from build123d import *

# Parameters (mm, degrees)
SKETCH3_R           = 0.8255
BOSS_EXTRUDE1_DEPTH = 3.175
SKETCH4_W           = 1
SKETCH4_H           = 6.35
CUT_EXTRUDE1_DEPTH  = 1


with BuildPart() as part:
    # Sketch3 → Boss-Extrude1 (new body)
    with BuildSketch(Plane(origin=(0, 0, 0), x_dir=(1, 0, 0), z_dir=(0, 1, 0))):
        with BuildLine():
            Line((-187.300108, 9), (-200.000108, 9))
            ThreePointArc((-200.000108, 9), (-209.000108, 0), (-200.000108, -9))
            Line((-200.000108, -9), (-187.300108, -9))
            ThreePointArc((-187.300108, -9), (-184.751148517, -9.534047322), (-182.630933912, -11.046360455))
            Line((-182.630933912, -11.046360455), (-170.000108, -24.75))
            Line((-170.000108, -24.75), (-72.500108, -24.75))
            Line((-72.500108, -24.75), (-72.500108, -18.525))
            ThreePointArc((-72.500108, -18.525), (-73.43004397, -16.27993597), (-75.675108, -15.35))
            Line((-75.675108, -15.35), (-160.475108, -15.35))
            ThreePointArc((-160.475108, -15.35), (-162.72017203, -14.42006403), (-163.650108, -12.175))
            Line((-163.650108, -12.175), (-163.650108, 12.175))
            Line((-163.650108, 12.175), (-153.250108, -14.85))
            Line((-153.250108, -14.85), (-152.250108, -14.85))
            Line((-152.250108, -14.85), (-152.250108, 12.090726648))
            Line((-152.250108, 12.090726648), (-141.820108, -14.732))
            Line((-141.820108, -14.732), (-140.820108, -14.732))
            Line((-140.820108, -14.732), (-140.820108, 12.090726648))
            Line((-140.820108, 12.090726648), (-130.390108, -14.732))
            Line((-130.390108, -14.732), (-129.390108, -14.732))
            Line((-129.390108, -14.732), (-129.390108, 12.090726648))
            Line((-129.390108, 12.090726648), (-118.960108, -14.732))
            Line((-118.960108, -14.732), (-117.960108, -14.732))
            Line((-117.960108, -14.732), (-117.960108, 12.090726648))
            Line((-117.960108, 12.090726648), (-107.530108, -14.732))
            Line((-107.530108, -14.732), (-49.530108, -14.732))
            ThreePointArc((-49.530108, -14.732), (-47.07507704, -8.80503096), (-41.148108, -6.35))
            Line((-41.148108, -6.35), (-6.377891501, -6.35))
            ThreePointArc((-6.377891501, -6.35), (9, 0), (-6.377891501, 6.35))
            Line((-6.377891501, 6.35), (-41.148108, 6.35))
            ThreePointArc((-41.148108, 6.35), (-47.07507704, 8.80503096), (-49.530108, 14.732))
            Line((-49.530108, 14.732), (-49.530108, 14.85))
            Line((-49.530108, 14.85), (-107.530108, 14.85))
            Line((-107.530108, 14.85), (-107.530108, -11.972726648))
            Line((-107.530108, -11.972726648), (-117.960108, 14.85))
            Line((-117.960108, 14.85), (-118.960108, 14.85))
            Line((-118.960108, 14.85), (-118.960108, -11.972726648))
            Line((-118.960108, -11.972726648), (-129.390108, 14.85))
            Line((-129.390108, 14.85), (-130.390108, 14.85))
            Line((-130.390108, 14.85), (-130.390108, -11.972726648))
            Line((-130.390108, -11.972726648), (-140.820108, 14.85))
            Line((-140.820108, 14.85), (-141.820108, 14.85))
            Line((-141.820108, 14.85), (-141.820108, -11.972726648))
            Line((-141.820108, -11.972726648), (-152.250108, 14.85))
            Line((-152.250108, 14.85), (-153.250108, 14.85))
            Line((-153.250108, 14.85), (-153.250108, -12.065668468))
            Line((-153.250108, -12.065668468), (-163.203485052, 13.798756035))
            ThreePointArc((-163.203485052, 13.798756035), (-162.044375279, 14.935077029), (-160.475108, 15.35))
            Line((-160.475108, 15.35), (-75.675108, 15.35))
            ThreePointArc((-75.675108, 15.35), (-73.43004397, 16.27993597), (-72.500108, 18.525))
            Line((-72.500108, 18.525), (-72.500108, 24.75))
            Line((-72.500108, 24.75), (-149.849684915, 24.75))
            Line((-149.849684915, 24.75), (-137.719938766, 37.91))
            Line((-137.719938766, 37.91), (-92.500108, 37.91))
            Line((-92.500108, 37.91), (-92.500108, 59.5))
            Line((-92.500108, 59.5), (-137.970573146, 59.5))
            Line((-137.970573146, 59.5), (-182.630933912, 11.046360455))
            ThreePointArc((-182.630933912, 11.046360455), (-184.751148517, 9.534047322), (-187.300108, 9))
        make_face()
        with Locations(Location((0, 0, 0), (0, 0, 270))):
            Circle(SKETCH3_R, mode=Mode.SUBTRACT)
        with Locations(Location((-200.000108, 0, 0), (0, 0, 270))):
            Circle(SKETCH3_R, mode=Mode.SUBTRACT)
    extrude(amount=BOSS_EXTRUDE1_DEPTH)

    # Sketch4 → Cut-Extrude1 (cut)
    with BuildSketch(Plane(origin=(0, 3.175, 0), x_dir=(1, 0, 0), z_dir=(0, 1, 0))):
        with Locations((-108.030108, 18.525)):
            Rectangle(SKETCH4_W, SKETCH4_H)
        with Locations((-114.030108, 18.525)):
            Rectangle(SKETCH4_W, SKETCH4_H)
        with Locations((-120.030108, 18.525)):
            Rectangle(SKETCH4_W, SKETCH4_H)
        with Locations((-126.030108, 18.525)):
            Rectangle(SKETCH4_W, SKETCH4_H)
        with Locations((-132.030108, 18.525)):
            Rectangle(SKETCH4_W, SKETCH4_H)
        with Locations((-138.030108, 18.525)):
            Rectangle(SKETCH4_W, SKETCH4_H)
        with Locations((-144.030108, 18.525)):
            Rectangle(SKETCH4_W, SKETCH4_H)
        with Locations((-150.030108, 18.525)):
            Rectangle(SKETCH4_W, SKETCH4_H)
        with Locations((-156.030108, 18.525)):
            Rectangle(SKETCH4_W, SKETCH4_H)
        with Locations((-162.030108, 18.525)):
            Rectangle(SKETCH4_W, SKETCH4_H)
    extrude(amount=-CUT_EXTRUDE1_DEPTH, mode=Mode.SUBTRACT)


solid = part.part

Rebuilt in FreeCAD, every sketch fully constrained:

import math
import FreeCAD as App
import Part
import Sketcher
from FreeCAD import Vector
Q = App.Units.Quantity


def add_polygon(sketch, points):
    """Adds a closed chain of lines whose ends are joined by coincident constraints."""
    first, n = sketch.GeometryCount, len(points)
    for a, b in zip(points, points[1:] + points[:1]):
        sketch.addGeometry(Part.LineSegment(App.Vector(*a, 0), App.Vector(*b, 0)), False)
    for i in range(n):
        sketch.addConstraint(Sketcher.Constraint("Coincident", first + i, 2, first + (i + 1) % n, 1))

doc = App.newDocument("Part")
params = doc.addObject("Spreadsheet::Sheet", "Params")
for row, (alias, value) in enumerate([
    ("sketch1_radius", "0.25 in"),
    ("sketch1_radius2", "0.33 in"),
    ("sketch1_diameter", "0.065 in"),
    ("sketch1_width", "0.5 in"),
    ("sketch1_radius3", "0.125 in"),
    ("pad1_length", "0.125 in"),
    ("sketch2_height", "0.25 in"),
    ("pocket1_length", "1 mm"),
], start=1):
    params.set(f"A{row}", alias)
    params.set(f"B{row}", "=" + value)
    params.setAlias(f"B{row}", alias)

body = doc.addObject("PartDesign::Body", "Body")

sketch1 = body.newObject("Sketcher::SketchObject", "Sketch")
sketch1.AttachmentSupport = (doc.getObject("XZ_Plane"), [""])
sketch1.MapMode = "FlatFace"
sketch1.addGeometry([
    Part.LineSegment(Vector(-187.3, -9, 0), Vector(-200, -9, 0)),
    Part.ArcOfCircle(Part.Circle(Vector(-200, 0, 0), Vector(0, 0, 1), 9), math.radians(90), math.radians(270)),
    Part.LineSegment(Vector(-200, 9, 0), Vector(-187.3, 9, 0)),
    Part.ArcOfCircle(Part.Circle(Vector(-187.3, 15.35, 0), Vector(0, 0, 1), 6.35), math.radians(-90), math.radians(-43)),
    Part.LineSegment(Vector(-182.63, 11.05, 0), Vector(-170, 24.75, 0)),
    Part.LineSegment(Vector(-170, 24.75, 0), Vector(-72.5, 24.75, 0)),
    Part.LineSegment(Vector(-72.5, 24.75, 0), Vector(-72.5, 18.52, 0)),
    Part.ArcOfCircle(Part.Circle(Vector(-75.68, 18.53, 0), Vector(0, 0, 1), 3.18), math.radians(-90), math.radians(0)),
    Part.LineSegment(Vector(-75.68, 15.35, 0), Vector(-160.48, 15.35, 0)),
    Part.ArcOfCircle(Part.Circle(Vector(-160.48, 12.17, 0), Vector(0, 0, 1), 3.18), math.radians(90), math.radians(180)),
    Part.LineSegment(Vector(-163.65, 12.18, 0), Vector(-163.65, -12.18, 0)),
    Part.LineSegment(Vector(-163.65, -12.18, 0), Vector(-153.25, 14.85, 0)),
    Part.LineSegment(Vector(-153.25, 14.85, 0), Vector(-152.25, 14.85, 0)),
    Part.LineSegment(Vector(-152.25, 14.85, 0), Vector(-152.25, -12.09, 0)),
    Part.LineSegment(Vector(-152.25, -12.09, 0), Vector(-141.82, 14.73, 0)),
    Part.LineSegment(Vector(-141.82, 14.73, 0), Vector(-140.82, 14.73, 0)),
    Part.LineSegment(Vector(-140.82, 14.73, 0), Vector(-140.82, -12.09, 0)),
    Part.LineSegment(Vector(-140.82, -12.09, 0), Vector(-130.39, 14.73, 0)),
    Part.LineSegment(Vector(-130.39, 14.73, 0), Vector(-129.39, 14.73, 0)),
    Part.LineSegment(Vector(-129.39, 14.73, 0), Vector(-129.39, -12.09, 0)),
    Part.LineSegment(Vector(-129.39, -12.09, 0), Vector(-118.96, 14.73, 0)),
    Part.LineSegment(Vector(-118.96, 14.73, 0), Vector(-117.96, 14.73, 0)),
    Part.LineSegment(Vector(-117.96, 14.73, 0), Vector(-117.96, -12.09, 0)),
    Part.LineSegment(Vector(-117.96, -12.09, 0), Vector(-107.53, 14.73, 0)),
    Part.LineSegment(Vector(-107.53, 14.73, 0), Vector(-49.53, 14.73, 0)),
    Part.ArcOfCircle(Part.Circle(Vector(-41.15, 14.73, 0), Vector(0, 0, 1), 8.38), math.radians(180), math.radians(270)),
    Part.LineSegment(Vector(-41.15, 6.35, 0), Vector(-6.38, 6.35, 0)),
    Part.ArcOfCircle(Part.Circle(Vector(0, 0, 0), Vector(0, 0, 1), 9), math.radians(-135), math.radians(135)),
    Part.LineSegment(Vector(-6.38, -6.35, 0), Vector(-41.15, -6.35, 0)),
    Part.ArcOfCircle(Part.Circle(Vector(-41.15, -14.73, 0), Vector(0, 0, 1), 8.38), math.radians(90), math.radians(180)),
    Part.LineSegment(Vector(-49.53, -14.73, 0), Vector(-49.53, -14.85, 0)),
    Part.LineSegment(Vector(-49.53, -14.85, 0), Vector(-107.53, -14.85, 0)),
    Part.LineSegment(Vector(-107.53, -14.85, 0), Vector(-107.53, 11.97, 0)),
    Part.LineSegment(Vector(-107.53, 11.97, 0), Vector(-117.96, -14.85, 0)),
    Part.LineSegment(Vector(-117.96, -14.85, 0), Vector(-118.96, -14.85, 0)),
    Part.LineSegment(Vector(-118.96, -14.85, 0), Vector(-118.96, 11.97, 0)),
    Part.LineSegment(Vector(-118.96, 11.97, 0), Vector(-129.39, -14.85, 0)),
    Part.LineSegment(Vector(-129.39, -14.85, 0), Vector(-130.39, -14.85, 0)),
    Part.LineSegment(Vector(-130.39, -14.85, 0), Vector(-130.39, 11.97, 0)),
    Part.LineSegment(Vector(-130.39, 11.97, 0), Vector(-140.82, -14.85, 0)),
    Part.LineSegment(Vector(-140.82, -14.85, 0), Vector(-141.82, -14.85, 0)),
    Part.LineSegment(Vector(-141.82, -14.85, 0), Vector(-141.82, 11.97, 0)),
    Part.LineSegment(Vector(-141.82, 11.97, 0), Vector(-152.25, -14.85, 0)),
    Part.LineSegment(Vector(-152.25, -14.85, 0), Vector(-153.25, -14.85, 0)),
    Part.LineSegment(Vector(-153.25, -14.85, 0), Vector(-153.25, 12.07, 0)),
    Part.LineSegment(Vector(-153.25, 12.07, 0), Vector(-163.2, -13.8, 0)),
    Part.ArcOfCircle(Part.Circle(Vector(-160.48, -12.17, 0), Vector(0, 0, 1), 3.18), math.radians(-149), math.radians(-90)),
    Part.LineSegment(Vector(-160.48, -15.35, 0), Vector(-75.68, -15.35, 0)),
    Part.ArcOfCircle(Part.Circle(Vector(-75.68, -18.53, 0), Vector(0, 0, 1), 3.18), math.radians(0), math.radians(90)),
    Part.LineSegment(Vector(-72.5, -18.52, 0), Vector(-72.5, -24.75, 0)),
    Part.LineSegment(Vector(-72.5, -24.75, 0), Vector(-149.85, -24.75, 0)),
    Part.LineSegment(Vector(-149.85, -24.75, 0), Vector(-137.72, -37.91, 0)),
    Part.LineSegment(Vector(-137.72, -37.91, 0), Vector(-92.5, -37.91, 0)),
    Part.LineSegment(Vector(-92.5, -37.91, 0), Vector(-92.5, -59.5, 0)),
    Part.LineSegment(Vector(-92.5, -59.5, 0), Vector(-137.97, -59.5, 0)),
    Part.LineSegment(Vector(-137.97, -59.5, 0), Vector(-182.63, -11.05, 0)),
    Part.ArcOfCircle(Part.Circle(Vector(-187.3, -15.35, 0), Vector(0, 0, 1), 6.35), math.radians(43), math.radians(90)),
    Part.Circle(Vector(-200, 0, 0), Vector(0, 0, 1), 0.83),
    Part.Circle(Vector(0, 0, 0), Vector(0, 0, 1), 0.83),
], False)
sketch1.addConstraint([
    Sketcher.Constraint("Tangent", 0, 2, 1, 2),
    Sketcher.Constraint("Tangent", 1, 1, 2, 1),
    Sketcher.Constraint("Tangent", 2, 2, 3, 1),
    Sketcher.Constraint("Tangent", 3, 2, 4, 1),
    Sketcher.Constraint("Coincident", 4, 2, 5, 1),
    Sketcher.Constraint("Coincident", 5, 2, 6, 1),
    Sketcher.Constraint("Tangent", 6, 2, 7, 2),
    Sketcher.Constraint("Tangent", 7, 1, 8, 1),
    Sketcher.Constraint("Tangent", 8, 2, 9, 1),
    Sketcher.Constraint("Tangent", 9, 2, 10, 1),
    Sketcher.Constraint("Coincident", 10, 2, 11, 1),
    Sketcher.Constraint("Coincident", 11, 2, 12, 1),
    Sketcher.Constraint("Coincident", 12, 2, 13, 1),
    Sketcher.Constraint("Coincident", 13, 2, 14, 1),
    Sketcher.Constraint("Coincident", 14, 2, 15, 1),
    Sketcher.Constraint("Coincident", 15, 2, 16, 1),
    Sketcher.Constraint("Coincident", 16, 2, 17, 1),
    Sketcher.Constraint("Coincident", 17, 2, 18, 1),
    Sketcher.Constraint("Coincident", 18, 2, 19, 1),
    Sketcher.Constraint("Coincident", 19, 2, 20, 1),
    Sketcher.Constraint("Coincident", 20, 2, 21, 1),
    Sketcher.Constraint("Coincident", 21, 2, 22, 1),
    Sketcher.Constraint("Coincident", 22, 2, 23, 1),
    Sketcher.Constraint("Coincident", 23, 2, 24, 1),
    Sketcher.Constraint("Coincident", 24, 2, 25, 1),
    Sketcher.Constraint("Tangent", 25, 2, 26, 1),
    Sketcher.Constraint("Coincident", 26, 2, 27, 2),
    Sketcher.Constraint("Coincident", 27, 1, 28, 1),
    Sketcher.Constraint("Tangent", 28, 2, 29, 1),
    Sketcher.Constraint("Tangent", 29, 2, 30, 1),
    Sketcher.Constraint("Coincident", 30, 2, 31, 1),
    Sketcher.Constraint("Coincident", 31, 2, 32, 1),
    Sketcher.Constraint("Coincident", 32, 2, 33, 1),
    Sketcher.Constraint("Coincident", 33, 2, 34, 1),
    Sketcher.Constraint("Coincident", 34, 2, 35, 1),
    Sketcher.Constraint("Coincident", 35, 2, 36, 1),
    Sketcher.Constraint("Coincident", 36, 2, 37, 1),
    Sketcher.Constraint("Coincident", 37, 2, 38, 1),
    Sketcher.Constraint("Coincident", 38, 2, 39, 1),
    Sketcher.Constraint("Coincident", 39, 2, 40, 1),
    Sketcher.Constraint("Coincident", 40, 2, 41, 1),
    Sketcher.Constraint("Coincident", 41, 2, 42, 1),
    Sketcher.Constraint("Coincident", 42, 2, 43, 1),
    Sketcher.Constraint("Coincident", 43, 2, 44, 1),
    Sketcher.Constraint("Coincident", 44, 2, 45, 1),
    Sketcher.Constraint("Coincident", 45, 2, 46, 1),
    Sketcher.Constraint("Tangent", 46, 2, 47, 1),
    Sketcher.Constraint("Tangent", 47, 2, 48, 2),
    Sketcher.Constraint("Tangent", 48, 1, 49, 1),
    Sketcher.Constraint("Coincident", 49, 2, 50, 1),
    Sketcher.Constraint("Coincident", 50, 2, 51, 1),
    Sketcher.Constraint("Coincident", 51, 2, 52, 1),
    Sketcher.Constraint("Coincident", 52, 2, 53, 1),
    Sketcher.Constraint("Coincident", 53, 2, 54, 1),
    Sketcher.Constraint("Coincident", 54, 2, 55, 1),
    Sketcher.Constraint("Tangent", 55, 2, 56, 1),
    Sketcher.Constraint("Tangent", 56, 2, 0, 1),
    Sketcher.Constraint("Horizontal", 0),
    Sketcher.Constraint("Horizontal", 2),
    Sketcher.Constraint("Horizontal", 5),
    Sketcher.Constraint("Vertical", 6),
    Sketcher.Constraint("Horizontal", 8),
    Sketcher.Constraint("Vertical", 10),
    Sketcher.Constraint("Horizontal", 12),
    Sketcher.Constraint("Vertical", 13),
    Sketcher.Constraint("Horizontal", 15),
    Sketcher.Constraint("Vertical", 16),
    Sketcher.Constraint("Horizontal", 18),
    Sketcher.Constraint("Vertical", 19),
    Sketcher.Constraint("Horizontal", 21),
    Sketcher.Constraint("Vertical", 22),
    Sketcher.Constraint("Horizontal", 24),
    Sketcher.Constraint("Horizontal", 26),
    Sketcher.Constraint("Horizontal", 28),
    Sketcher.Constraint("Vertical", 30),
    Sketcher.Constraint("Horizontal", 31),
    Sketcher.Constraint("Vertical", 32),
    Sketcher.Constraint("Horizontal", 34),
    Sketcher.Constraint("Vertical", 35),
    Sketcher.Constraint("Horizontal", 37),
    Sketcher.Constraint("Vertical", 38),
    Sketcher.Constraint("Horizontal", 40),
    Sketcher.Constraint("Vertical", 41),
    Sketcher.Constraint("Horizontal", 43),
    Sketcher.Constraint("Vertical", 44),
    Sketcher.Constraint("Horizontal", 47),
    Sketcher.Constraint("Vertical", 49),
    Sketcher.Constraint("Horizontal", 50),
    Sketcher.Constraint("Horizontal", 52),
    Sketcher.Constraint("Vertical", 53),
    Sketcher.Constraint("Horizontal", 54),
    Sketcher.Constraint("Coincident", 27, 3, -1, 1),
    Sketcher.Constraint("Coincident", 58, 3, -1, 1),
    Sketcher.Constraint("Coincident", 57, 3, 1, 3),
    Sketcher.Constraint("Equal", 7, 9),
    Sketcher.Constraint("Equal", 1, 27),
    Sketcher.Constraint("Equal", 25, 29),
    Sketcher.Constraint("Equal", 9, 46),
    Sketcher.Constraint("Equal", 46, 48),
    Sketcher.Constraint("Equal", 3, 56),
    Sketcher.Constraint("Equal", 57, 58),
    Sketcher.Constraint("Symmetric", 25, 3, 29, 3, -1),
    Sketcher.Constraint("Symmetric", 9, 3, 46, 3, -1),
    Sketcher.Constraint("Symmetric", 3, 3, 56, 3, -1),
    Sketcher.Constraint("Symmetric", 12, 2, 42, 2, -1),
    Sketcher.Constraint("Symmetric", 5, 2, 49, 2, -1),
    Sketcher.Constraint("Parallel", 14, 17),
    Sketcher.Constraint("Parallel", 17, 20),
    Sketcher.Constraint("Parallel", 20, 23),
    Sketcher.Constraint("Parallel", 23, 33),
    Sketcher.Constraint("Parallel", 33, 36),
    Sketcher.Constraint("Parallel", 36, 39),
    Sketcher.Constraint("Parallel", 39, 42),
    Sketcher.Constraint("Parallel", 11, 45),
    Sketcher.Constraint("Parallel", 51, 55),
    Sketcher.Constraint("Horizontal", 3, 3, 7, 1),
    Sketcher.Constraint("Horizontal", 46, 3, 10, 2),
    Sketcher.Constraint("Horizontal", 25, 3, 14, 2),
    Sketcher.Constraint("Horizontal", 13, 2, 16, 2),
    Sketcher.Constraint("Horizontal", 15, 2, 17, 2),
    Sketcher.Constraint("Horizontal", 16, 2, 19, 2),
    Sketcher.Constraint("Horizontal", 18, 2, 20, 2),
    Sketcher.Constraint("Horizontal", 19, 2, 22, 2),
    Sketcher.Constraint("Horizontal", 21, 2, 23, 2),
    Sketcher.Constraint("Horizontal", 31, 2, 33, 2),
    Sketcher.Constraint("Horizontal", 32, 2, 35, 2),
    Sketcher.Constraint("Horizontal", 34, 2, 36, 2),
    Sketcher.Constraint("Horizontal", 35, 2, 38, 2),
    Sketcher.Constraint("Horizontal", 37, 2, 39, 2),
    Sketcher.Constraint("Horizontal", 38, 2, 41, 2),
    Sketcher.Constraint("Horizontal", 40, 2, 42, 2),
    Sketcher.Constraint("Vertical", 23, 2, 31, 2),
    Sketcher.Constraint("Vertical", 22, 2, 33, 2),
    Sketcher.Constraint("Vertical", 20, 2, 34, 2),
    Sketcher.Constraint("Vertical", 17, 2, 37, 2),
    Sketcher.Constraint("Vertical", 11, 2, 43, 2),
    Sketcher.Constraint("Vertical", 3, 2, 55, 2),
    Sketcher.Constraint("Equal", 12, 15),
    Sketcher.Constraint("Equal", 15, 18),
    Sketcher.Constraint("Equal", 18, 21),
    Sketcher.Constraint("Radius", 3, Q("0.25 in")),
    Sketcher.Constraint("Radius", 25, Q("0.33 in")),
    Sketcher.Constraint("Diameter", 57, Q("0.065 in")),
    Sketcher.Constraint("DistanceX", 0, 2, 0, 1, Q("0.5 in")),
    Sketcher.Constraint("Radius", 7, Q("0.125 in")),
    Sketcher.Constraint("DistanceY", 53, 2, 53, 1, Q("0.85 in")),
    Sketcher.Constraint("DistanceY", -1, 1, 25, 3, Q("0.58 in")),
    Sketcher.Constraint("Radius", 1, Q("9 mm")),
    Sketcher.Constraint("DistanceX", 5, 1, 5, 2, Q("97.5 mm")),
    Sketcher.Constraint("DistanceX", 8, 2, 8, 1, Q("84.8 mm")),
    Sketcher.Constraint("DistanceX", 12, 1, 12, 2, Q("1 mm")),
    Sketcher.Constraint("DistanceX", 24, 1, 24, 2, Q("58 mm")),
    Sketcher.Constraint("DistanceY", 6, 2, 6, 1, Q("6.225 mm")),
    Sketcher.Constraint("DistanceY", 30, 2, 30, 1, Q("0.118 mm")),
    Sketcher.Constraint("Distance", 45, Q("27.713502 mm")),
    Sketcher.Constraint("DistanceX", 52, 1, 52, 2, Q("45.219831 mm")),
    Sketcher.Constraint("DistanceY", 44, 1, 44, 2, Q("26.915668 mm")),
    Sketcher.Constraint("DistanceY", 51, 2, -1, 1, Q("37.91 mm")),
    Sketcher.Constraint("Distance", 14, Q("28.779221 mm")),
    Sketcher.Constraint("DistanceX", 26, 1, 26, 2, Q("34.770216 mm")),
    Sketcher.Constraint("DistanceX", 50, 2, 50, 1, Q("77.349577 mm")),
    Sketcher.Constraint("DistanceX", 54, 2, 54, 1, Q("45.470465 mm")),
    Sketcher.Constraint("DistanceY", 13, 2, 13, 1, Q("26.940727 mm")),
])
sketch1.setExpression("Constraints[140]", "Params.sketch1_radius")
sketch1.setExpression("Constraints[141]", "Params.sketch1_radius2")
sketch1.setExpression("Constraints[142]", "Params.sketch1_diameter")
sketch1.setExpression("Constraints[143]", "Params.sketch1_width")
sketch1.setExpression("Constraints[144]", "Params.sketch1_radius3")
pad1 = body.newObject("PartDesign::Pad", "Pad")
pad1.Profile = sketch1
pad1.setExpression("Length", "Params.pad1_length")
pad1.Reversed = True

sketch2 = body.newObject("Sketcher::SketchObject", "Sketch001")
sketch2.AttachmentSupport = (doc.getObject("XZ_Plane"), [""])
sketch2.MapMode = "FlatFace"
sketch2.AttachmentOffset = App.Placement(Vector(0, 0, -0.125 * 25.4), App.Rotation())
add_polygon(sketch2, [(-108.5, -21.7), (-108.5, -15.3), (-107.5, -15.3), (-107.5, -21.7)])
add_polygon(sketch2, [(-114.5, -21.7), (-114.5, -15.3), (-113.5, -15.3), (-113.5, -21.7)])
add_polygon(sketch2, [(-120.5, -21.7), (-120.5, -15.3), (-119.5, -15.3), (-119.5, -21.7)])
add_polygon(sketch2, [(-126.5, -21.7), (-126.5, -15.3), (-125.5, -15.3), (-125.5, -21.7)])
add_polygon(sketch2, [(-132.5, -21.7), (-132.5, -15.3), (-131.5, -15.3), (-131.5, -21.7)])
add_polygon(sketch2, [(-138.5, -21.7), (-138.5, -15.3), (-137.5, -15.3), (-137.5, -21.7)])
add_polygon(sketch2, [(-144.5, -21.7), (-144.5, -15.3), (-143.5, -15.3), (-143.5, -21.7)])
add_polygon(sketch2, [(-150.5, -21.7), (-150.5, -15.3), (-149.5, -15.3), (-149.5, -21.7)])
add_polygon(sketch2, [(-156.5, -21.7), (-156.5, -15.3), (-155.5, -15.3), (-155.5, -21.7)])
add_polygon(sketch2, [(-162.5, -21.7), (-162.5, -15.3), (-161.5, -15.3), (-161.5, -21.7)])
sketch2.addConstraint([
    Sketcher.Constraint("Vertical", 0),
    Sketcher.Constraint("Horizontal", 1),
    Sketcher.Constraint("Vertical", 2),
    Sketcher.Constraint("Horizontal", 3),
    Sketcher.Constraint("Vertical", 4),
    Sketcher.Constraint("Horizontal", 5),
    Sketcher.Constraint("Vertical", 6),
    Sketcher.Constraint("Horizontal", 7),
    Sketcher.Constraint("Vertical", 8),
    Sketcher.Constraint("Horizontal", 9),
    Sketcher.Constraint("Vertical", 10),
    Sketcher.Constraint("Horizontal", 11),
    Sketcher.Constraint("Vertical", 12),
    Sketcher.Constraint("Horizontal", 13),
    Sketcher.Constraint("Vertical", 14),
    Sketcher.Constraint("Horizontal", 15),
    Sketcher.Constraint("Vertical", 16),
    Sketcher.Constraint("Horizontal", 17),
    Sketcher.Constraint("Vertical", 18),
    Sketcher.Constraint("Horizontal", 19),
    Sketcher.Constraint("Vertical", 20),
    Sketcher.Constraint("Horizontal", 21),
    Sketcher.Constraint("Vertical", 22),
    Sketcher.Constraint("Horizontal", 23),
    Sketcher.Constraint("Vertical", 24),
    Sketcher.Constraint("Horizontal", 25),
    Sketcher.Constraint("Vertical", 26),
    Sketcher.Constraint("Horizontal", 27),
    Sketcher.Constraint("Vertical", 28),
    Sketcher.Constraint("Horizontal", 29),
    Sketcher.Constraint("Vertical", 30),
    Sketcher.Constraint("Horizontal", 31),
    Sketcher.Constraint("Vertical", 32),
    Sketcher.Constraint("Horizontal", 33),
    Sketcher.Constraint("Vertical", 34),
    Sketcher.Constraint("Horizontal", 35),
    Sketcher.Constraint("Vertical", 36),
    Sketcher.Constraint("Horizontal", 37),
    Sketcher.Constraint("Vertical", 38),
    Sketcher.Constraint("Horizontal", 39),
    Sketcher.Constraint("Horizontal", 1, 2, 4, 2),
    Sketcher.Constraint("Horizontal", 3, 2, 6, 2),
    Sketcher.Constraint("Horizontal", 5, 2, 8, 2),
    Sketcher.Constraint("Horizontal", 7, 2, 10, 2),
    Sketcher.Constraint("Horizontal", 9, 2, 12, 2),
    Sketcher.Constraint("Horizontal", 11, 2, 14, 2),
    Sketcher.Constraint("Horizontal", 13, 2, 16, 2),
    Sketcher.Constraint("Horizontal", 15, 2, 18, 2),
    Sketcher.Constraint("Horizontal", 17, 2, 20, 2),
    Sketcher.Constraint("Horizontal", 19, 2, 22, 2),
    Sketcher.Constraint("Horizontal", 21, 2, 24, 2),
    Sketcher.Constraint("Horizontal", 23, 2, 26, 2),
    Sketcher.Constraint("Horizontal", 25, 2, 28, 2),
    Sketcher.Constraint("Horizontal", 27, 2, 30, 2),
    Sketcher.Constraint("Horizontal", 29, 2, 32, 2),
    Sketcher.Constraint("Horizontal", 31, 2, 34, 2),
    Sketcher.Constraint("Horizontal", 33, 2, 36, 2),
    Sketcher.Constraint("Horizontal", 35, 2, 38, 2),
    Sketcher.Constraint("Equal", 3, 5),
    Sketcher.Constraint("Equal", 7, 9),
    Sketcher.Constraint("Equal", 11, 13),
    Sketcher.Constraint("Equal", 15, 17),
    Sketcher.Constraint("Equal", 19, 21),
    Sketcher.Constraint("Equal", 23, 25),
    Sketcher.Constraint("Equal", 27, 29),
    Sketcher.Constraint("Equal", 31, 33),
    Sketcher.Constraint("Equal", 35, 37),
    Sketcher.Constraint("DistanceY", 0, 1, 0, 2, Q("0.25 in")),
    Sketcher.Constraint("DistanceX", 1, 1, 1, 2, Q("1 mm")),
    Sketcher.Constraint("DistanceY", 0, 2, -1, 1, Q("15.35 mm")),
    Sketcher.Constraint("DistanceX", 4, 2, 0, 2, Q("6 mm")),
    Sketcher.Constraint("DistanceX", 8, 2, 4, 2, Q("6 mm")),
    Sketcher.Constraint("DistanceX", 12, 2, 8, 2, Q("6 mm")),
    Sketcher.Constraint("DistanceX", 16, 2, 12, 2, Q("6 mm")),
    Sketcher.Constraint("DistanceX", 20, 2, 16, 2, Q("6 mm")),
    Sketcher.Constraint("DistanceX", 24, 2, 20, 2, Q("6 mm")),
    Sketcher.Constraint("DistanceX", 28, 2, 24, 2, Q("6 mm")),
    Sketcher.Constraint("DistanceX", 32, 2, 28, 2, Q("6 mm")),
    Sketcher.Constraint("DistanceX", 36, 2, 32, 2, Q("6 mm")),
    Sketcher.Constraint("DistanceX", 0, 2, -1, 1, Q("108.530108 mm")),
])
sketch2.setExpression("Constraints[107]", "Params.sketch2_height")
pocket1 = body.newObject("PartDesign::Pocket", "Pocket")
pocket1.Profile = sketch2
pocket1.setExpression("Length", "Params.pocket1_length")
pocket1.Reversed = True

doc.recompute()
